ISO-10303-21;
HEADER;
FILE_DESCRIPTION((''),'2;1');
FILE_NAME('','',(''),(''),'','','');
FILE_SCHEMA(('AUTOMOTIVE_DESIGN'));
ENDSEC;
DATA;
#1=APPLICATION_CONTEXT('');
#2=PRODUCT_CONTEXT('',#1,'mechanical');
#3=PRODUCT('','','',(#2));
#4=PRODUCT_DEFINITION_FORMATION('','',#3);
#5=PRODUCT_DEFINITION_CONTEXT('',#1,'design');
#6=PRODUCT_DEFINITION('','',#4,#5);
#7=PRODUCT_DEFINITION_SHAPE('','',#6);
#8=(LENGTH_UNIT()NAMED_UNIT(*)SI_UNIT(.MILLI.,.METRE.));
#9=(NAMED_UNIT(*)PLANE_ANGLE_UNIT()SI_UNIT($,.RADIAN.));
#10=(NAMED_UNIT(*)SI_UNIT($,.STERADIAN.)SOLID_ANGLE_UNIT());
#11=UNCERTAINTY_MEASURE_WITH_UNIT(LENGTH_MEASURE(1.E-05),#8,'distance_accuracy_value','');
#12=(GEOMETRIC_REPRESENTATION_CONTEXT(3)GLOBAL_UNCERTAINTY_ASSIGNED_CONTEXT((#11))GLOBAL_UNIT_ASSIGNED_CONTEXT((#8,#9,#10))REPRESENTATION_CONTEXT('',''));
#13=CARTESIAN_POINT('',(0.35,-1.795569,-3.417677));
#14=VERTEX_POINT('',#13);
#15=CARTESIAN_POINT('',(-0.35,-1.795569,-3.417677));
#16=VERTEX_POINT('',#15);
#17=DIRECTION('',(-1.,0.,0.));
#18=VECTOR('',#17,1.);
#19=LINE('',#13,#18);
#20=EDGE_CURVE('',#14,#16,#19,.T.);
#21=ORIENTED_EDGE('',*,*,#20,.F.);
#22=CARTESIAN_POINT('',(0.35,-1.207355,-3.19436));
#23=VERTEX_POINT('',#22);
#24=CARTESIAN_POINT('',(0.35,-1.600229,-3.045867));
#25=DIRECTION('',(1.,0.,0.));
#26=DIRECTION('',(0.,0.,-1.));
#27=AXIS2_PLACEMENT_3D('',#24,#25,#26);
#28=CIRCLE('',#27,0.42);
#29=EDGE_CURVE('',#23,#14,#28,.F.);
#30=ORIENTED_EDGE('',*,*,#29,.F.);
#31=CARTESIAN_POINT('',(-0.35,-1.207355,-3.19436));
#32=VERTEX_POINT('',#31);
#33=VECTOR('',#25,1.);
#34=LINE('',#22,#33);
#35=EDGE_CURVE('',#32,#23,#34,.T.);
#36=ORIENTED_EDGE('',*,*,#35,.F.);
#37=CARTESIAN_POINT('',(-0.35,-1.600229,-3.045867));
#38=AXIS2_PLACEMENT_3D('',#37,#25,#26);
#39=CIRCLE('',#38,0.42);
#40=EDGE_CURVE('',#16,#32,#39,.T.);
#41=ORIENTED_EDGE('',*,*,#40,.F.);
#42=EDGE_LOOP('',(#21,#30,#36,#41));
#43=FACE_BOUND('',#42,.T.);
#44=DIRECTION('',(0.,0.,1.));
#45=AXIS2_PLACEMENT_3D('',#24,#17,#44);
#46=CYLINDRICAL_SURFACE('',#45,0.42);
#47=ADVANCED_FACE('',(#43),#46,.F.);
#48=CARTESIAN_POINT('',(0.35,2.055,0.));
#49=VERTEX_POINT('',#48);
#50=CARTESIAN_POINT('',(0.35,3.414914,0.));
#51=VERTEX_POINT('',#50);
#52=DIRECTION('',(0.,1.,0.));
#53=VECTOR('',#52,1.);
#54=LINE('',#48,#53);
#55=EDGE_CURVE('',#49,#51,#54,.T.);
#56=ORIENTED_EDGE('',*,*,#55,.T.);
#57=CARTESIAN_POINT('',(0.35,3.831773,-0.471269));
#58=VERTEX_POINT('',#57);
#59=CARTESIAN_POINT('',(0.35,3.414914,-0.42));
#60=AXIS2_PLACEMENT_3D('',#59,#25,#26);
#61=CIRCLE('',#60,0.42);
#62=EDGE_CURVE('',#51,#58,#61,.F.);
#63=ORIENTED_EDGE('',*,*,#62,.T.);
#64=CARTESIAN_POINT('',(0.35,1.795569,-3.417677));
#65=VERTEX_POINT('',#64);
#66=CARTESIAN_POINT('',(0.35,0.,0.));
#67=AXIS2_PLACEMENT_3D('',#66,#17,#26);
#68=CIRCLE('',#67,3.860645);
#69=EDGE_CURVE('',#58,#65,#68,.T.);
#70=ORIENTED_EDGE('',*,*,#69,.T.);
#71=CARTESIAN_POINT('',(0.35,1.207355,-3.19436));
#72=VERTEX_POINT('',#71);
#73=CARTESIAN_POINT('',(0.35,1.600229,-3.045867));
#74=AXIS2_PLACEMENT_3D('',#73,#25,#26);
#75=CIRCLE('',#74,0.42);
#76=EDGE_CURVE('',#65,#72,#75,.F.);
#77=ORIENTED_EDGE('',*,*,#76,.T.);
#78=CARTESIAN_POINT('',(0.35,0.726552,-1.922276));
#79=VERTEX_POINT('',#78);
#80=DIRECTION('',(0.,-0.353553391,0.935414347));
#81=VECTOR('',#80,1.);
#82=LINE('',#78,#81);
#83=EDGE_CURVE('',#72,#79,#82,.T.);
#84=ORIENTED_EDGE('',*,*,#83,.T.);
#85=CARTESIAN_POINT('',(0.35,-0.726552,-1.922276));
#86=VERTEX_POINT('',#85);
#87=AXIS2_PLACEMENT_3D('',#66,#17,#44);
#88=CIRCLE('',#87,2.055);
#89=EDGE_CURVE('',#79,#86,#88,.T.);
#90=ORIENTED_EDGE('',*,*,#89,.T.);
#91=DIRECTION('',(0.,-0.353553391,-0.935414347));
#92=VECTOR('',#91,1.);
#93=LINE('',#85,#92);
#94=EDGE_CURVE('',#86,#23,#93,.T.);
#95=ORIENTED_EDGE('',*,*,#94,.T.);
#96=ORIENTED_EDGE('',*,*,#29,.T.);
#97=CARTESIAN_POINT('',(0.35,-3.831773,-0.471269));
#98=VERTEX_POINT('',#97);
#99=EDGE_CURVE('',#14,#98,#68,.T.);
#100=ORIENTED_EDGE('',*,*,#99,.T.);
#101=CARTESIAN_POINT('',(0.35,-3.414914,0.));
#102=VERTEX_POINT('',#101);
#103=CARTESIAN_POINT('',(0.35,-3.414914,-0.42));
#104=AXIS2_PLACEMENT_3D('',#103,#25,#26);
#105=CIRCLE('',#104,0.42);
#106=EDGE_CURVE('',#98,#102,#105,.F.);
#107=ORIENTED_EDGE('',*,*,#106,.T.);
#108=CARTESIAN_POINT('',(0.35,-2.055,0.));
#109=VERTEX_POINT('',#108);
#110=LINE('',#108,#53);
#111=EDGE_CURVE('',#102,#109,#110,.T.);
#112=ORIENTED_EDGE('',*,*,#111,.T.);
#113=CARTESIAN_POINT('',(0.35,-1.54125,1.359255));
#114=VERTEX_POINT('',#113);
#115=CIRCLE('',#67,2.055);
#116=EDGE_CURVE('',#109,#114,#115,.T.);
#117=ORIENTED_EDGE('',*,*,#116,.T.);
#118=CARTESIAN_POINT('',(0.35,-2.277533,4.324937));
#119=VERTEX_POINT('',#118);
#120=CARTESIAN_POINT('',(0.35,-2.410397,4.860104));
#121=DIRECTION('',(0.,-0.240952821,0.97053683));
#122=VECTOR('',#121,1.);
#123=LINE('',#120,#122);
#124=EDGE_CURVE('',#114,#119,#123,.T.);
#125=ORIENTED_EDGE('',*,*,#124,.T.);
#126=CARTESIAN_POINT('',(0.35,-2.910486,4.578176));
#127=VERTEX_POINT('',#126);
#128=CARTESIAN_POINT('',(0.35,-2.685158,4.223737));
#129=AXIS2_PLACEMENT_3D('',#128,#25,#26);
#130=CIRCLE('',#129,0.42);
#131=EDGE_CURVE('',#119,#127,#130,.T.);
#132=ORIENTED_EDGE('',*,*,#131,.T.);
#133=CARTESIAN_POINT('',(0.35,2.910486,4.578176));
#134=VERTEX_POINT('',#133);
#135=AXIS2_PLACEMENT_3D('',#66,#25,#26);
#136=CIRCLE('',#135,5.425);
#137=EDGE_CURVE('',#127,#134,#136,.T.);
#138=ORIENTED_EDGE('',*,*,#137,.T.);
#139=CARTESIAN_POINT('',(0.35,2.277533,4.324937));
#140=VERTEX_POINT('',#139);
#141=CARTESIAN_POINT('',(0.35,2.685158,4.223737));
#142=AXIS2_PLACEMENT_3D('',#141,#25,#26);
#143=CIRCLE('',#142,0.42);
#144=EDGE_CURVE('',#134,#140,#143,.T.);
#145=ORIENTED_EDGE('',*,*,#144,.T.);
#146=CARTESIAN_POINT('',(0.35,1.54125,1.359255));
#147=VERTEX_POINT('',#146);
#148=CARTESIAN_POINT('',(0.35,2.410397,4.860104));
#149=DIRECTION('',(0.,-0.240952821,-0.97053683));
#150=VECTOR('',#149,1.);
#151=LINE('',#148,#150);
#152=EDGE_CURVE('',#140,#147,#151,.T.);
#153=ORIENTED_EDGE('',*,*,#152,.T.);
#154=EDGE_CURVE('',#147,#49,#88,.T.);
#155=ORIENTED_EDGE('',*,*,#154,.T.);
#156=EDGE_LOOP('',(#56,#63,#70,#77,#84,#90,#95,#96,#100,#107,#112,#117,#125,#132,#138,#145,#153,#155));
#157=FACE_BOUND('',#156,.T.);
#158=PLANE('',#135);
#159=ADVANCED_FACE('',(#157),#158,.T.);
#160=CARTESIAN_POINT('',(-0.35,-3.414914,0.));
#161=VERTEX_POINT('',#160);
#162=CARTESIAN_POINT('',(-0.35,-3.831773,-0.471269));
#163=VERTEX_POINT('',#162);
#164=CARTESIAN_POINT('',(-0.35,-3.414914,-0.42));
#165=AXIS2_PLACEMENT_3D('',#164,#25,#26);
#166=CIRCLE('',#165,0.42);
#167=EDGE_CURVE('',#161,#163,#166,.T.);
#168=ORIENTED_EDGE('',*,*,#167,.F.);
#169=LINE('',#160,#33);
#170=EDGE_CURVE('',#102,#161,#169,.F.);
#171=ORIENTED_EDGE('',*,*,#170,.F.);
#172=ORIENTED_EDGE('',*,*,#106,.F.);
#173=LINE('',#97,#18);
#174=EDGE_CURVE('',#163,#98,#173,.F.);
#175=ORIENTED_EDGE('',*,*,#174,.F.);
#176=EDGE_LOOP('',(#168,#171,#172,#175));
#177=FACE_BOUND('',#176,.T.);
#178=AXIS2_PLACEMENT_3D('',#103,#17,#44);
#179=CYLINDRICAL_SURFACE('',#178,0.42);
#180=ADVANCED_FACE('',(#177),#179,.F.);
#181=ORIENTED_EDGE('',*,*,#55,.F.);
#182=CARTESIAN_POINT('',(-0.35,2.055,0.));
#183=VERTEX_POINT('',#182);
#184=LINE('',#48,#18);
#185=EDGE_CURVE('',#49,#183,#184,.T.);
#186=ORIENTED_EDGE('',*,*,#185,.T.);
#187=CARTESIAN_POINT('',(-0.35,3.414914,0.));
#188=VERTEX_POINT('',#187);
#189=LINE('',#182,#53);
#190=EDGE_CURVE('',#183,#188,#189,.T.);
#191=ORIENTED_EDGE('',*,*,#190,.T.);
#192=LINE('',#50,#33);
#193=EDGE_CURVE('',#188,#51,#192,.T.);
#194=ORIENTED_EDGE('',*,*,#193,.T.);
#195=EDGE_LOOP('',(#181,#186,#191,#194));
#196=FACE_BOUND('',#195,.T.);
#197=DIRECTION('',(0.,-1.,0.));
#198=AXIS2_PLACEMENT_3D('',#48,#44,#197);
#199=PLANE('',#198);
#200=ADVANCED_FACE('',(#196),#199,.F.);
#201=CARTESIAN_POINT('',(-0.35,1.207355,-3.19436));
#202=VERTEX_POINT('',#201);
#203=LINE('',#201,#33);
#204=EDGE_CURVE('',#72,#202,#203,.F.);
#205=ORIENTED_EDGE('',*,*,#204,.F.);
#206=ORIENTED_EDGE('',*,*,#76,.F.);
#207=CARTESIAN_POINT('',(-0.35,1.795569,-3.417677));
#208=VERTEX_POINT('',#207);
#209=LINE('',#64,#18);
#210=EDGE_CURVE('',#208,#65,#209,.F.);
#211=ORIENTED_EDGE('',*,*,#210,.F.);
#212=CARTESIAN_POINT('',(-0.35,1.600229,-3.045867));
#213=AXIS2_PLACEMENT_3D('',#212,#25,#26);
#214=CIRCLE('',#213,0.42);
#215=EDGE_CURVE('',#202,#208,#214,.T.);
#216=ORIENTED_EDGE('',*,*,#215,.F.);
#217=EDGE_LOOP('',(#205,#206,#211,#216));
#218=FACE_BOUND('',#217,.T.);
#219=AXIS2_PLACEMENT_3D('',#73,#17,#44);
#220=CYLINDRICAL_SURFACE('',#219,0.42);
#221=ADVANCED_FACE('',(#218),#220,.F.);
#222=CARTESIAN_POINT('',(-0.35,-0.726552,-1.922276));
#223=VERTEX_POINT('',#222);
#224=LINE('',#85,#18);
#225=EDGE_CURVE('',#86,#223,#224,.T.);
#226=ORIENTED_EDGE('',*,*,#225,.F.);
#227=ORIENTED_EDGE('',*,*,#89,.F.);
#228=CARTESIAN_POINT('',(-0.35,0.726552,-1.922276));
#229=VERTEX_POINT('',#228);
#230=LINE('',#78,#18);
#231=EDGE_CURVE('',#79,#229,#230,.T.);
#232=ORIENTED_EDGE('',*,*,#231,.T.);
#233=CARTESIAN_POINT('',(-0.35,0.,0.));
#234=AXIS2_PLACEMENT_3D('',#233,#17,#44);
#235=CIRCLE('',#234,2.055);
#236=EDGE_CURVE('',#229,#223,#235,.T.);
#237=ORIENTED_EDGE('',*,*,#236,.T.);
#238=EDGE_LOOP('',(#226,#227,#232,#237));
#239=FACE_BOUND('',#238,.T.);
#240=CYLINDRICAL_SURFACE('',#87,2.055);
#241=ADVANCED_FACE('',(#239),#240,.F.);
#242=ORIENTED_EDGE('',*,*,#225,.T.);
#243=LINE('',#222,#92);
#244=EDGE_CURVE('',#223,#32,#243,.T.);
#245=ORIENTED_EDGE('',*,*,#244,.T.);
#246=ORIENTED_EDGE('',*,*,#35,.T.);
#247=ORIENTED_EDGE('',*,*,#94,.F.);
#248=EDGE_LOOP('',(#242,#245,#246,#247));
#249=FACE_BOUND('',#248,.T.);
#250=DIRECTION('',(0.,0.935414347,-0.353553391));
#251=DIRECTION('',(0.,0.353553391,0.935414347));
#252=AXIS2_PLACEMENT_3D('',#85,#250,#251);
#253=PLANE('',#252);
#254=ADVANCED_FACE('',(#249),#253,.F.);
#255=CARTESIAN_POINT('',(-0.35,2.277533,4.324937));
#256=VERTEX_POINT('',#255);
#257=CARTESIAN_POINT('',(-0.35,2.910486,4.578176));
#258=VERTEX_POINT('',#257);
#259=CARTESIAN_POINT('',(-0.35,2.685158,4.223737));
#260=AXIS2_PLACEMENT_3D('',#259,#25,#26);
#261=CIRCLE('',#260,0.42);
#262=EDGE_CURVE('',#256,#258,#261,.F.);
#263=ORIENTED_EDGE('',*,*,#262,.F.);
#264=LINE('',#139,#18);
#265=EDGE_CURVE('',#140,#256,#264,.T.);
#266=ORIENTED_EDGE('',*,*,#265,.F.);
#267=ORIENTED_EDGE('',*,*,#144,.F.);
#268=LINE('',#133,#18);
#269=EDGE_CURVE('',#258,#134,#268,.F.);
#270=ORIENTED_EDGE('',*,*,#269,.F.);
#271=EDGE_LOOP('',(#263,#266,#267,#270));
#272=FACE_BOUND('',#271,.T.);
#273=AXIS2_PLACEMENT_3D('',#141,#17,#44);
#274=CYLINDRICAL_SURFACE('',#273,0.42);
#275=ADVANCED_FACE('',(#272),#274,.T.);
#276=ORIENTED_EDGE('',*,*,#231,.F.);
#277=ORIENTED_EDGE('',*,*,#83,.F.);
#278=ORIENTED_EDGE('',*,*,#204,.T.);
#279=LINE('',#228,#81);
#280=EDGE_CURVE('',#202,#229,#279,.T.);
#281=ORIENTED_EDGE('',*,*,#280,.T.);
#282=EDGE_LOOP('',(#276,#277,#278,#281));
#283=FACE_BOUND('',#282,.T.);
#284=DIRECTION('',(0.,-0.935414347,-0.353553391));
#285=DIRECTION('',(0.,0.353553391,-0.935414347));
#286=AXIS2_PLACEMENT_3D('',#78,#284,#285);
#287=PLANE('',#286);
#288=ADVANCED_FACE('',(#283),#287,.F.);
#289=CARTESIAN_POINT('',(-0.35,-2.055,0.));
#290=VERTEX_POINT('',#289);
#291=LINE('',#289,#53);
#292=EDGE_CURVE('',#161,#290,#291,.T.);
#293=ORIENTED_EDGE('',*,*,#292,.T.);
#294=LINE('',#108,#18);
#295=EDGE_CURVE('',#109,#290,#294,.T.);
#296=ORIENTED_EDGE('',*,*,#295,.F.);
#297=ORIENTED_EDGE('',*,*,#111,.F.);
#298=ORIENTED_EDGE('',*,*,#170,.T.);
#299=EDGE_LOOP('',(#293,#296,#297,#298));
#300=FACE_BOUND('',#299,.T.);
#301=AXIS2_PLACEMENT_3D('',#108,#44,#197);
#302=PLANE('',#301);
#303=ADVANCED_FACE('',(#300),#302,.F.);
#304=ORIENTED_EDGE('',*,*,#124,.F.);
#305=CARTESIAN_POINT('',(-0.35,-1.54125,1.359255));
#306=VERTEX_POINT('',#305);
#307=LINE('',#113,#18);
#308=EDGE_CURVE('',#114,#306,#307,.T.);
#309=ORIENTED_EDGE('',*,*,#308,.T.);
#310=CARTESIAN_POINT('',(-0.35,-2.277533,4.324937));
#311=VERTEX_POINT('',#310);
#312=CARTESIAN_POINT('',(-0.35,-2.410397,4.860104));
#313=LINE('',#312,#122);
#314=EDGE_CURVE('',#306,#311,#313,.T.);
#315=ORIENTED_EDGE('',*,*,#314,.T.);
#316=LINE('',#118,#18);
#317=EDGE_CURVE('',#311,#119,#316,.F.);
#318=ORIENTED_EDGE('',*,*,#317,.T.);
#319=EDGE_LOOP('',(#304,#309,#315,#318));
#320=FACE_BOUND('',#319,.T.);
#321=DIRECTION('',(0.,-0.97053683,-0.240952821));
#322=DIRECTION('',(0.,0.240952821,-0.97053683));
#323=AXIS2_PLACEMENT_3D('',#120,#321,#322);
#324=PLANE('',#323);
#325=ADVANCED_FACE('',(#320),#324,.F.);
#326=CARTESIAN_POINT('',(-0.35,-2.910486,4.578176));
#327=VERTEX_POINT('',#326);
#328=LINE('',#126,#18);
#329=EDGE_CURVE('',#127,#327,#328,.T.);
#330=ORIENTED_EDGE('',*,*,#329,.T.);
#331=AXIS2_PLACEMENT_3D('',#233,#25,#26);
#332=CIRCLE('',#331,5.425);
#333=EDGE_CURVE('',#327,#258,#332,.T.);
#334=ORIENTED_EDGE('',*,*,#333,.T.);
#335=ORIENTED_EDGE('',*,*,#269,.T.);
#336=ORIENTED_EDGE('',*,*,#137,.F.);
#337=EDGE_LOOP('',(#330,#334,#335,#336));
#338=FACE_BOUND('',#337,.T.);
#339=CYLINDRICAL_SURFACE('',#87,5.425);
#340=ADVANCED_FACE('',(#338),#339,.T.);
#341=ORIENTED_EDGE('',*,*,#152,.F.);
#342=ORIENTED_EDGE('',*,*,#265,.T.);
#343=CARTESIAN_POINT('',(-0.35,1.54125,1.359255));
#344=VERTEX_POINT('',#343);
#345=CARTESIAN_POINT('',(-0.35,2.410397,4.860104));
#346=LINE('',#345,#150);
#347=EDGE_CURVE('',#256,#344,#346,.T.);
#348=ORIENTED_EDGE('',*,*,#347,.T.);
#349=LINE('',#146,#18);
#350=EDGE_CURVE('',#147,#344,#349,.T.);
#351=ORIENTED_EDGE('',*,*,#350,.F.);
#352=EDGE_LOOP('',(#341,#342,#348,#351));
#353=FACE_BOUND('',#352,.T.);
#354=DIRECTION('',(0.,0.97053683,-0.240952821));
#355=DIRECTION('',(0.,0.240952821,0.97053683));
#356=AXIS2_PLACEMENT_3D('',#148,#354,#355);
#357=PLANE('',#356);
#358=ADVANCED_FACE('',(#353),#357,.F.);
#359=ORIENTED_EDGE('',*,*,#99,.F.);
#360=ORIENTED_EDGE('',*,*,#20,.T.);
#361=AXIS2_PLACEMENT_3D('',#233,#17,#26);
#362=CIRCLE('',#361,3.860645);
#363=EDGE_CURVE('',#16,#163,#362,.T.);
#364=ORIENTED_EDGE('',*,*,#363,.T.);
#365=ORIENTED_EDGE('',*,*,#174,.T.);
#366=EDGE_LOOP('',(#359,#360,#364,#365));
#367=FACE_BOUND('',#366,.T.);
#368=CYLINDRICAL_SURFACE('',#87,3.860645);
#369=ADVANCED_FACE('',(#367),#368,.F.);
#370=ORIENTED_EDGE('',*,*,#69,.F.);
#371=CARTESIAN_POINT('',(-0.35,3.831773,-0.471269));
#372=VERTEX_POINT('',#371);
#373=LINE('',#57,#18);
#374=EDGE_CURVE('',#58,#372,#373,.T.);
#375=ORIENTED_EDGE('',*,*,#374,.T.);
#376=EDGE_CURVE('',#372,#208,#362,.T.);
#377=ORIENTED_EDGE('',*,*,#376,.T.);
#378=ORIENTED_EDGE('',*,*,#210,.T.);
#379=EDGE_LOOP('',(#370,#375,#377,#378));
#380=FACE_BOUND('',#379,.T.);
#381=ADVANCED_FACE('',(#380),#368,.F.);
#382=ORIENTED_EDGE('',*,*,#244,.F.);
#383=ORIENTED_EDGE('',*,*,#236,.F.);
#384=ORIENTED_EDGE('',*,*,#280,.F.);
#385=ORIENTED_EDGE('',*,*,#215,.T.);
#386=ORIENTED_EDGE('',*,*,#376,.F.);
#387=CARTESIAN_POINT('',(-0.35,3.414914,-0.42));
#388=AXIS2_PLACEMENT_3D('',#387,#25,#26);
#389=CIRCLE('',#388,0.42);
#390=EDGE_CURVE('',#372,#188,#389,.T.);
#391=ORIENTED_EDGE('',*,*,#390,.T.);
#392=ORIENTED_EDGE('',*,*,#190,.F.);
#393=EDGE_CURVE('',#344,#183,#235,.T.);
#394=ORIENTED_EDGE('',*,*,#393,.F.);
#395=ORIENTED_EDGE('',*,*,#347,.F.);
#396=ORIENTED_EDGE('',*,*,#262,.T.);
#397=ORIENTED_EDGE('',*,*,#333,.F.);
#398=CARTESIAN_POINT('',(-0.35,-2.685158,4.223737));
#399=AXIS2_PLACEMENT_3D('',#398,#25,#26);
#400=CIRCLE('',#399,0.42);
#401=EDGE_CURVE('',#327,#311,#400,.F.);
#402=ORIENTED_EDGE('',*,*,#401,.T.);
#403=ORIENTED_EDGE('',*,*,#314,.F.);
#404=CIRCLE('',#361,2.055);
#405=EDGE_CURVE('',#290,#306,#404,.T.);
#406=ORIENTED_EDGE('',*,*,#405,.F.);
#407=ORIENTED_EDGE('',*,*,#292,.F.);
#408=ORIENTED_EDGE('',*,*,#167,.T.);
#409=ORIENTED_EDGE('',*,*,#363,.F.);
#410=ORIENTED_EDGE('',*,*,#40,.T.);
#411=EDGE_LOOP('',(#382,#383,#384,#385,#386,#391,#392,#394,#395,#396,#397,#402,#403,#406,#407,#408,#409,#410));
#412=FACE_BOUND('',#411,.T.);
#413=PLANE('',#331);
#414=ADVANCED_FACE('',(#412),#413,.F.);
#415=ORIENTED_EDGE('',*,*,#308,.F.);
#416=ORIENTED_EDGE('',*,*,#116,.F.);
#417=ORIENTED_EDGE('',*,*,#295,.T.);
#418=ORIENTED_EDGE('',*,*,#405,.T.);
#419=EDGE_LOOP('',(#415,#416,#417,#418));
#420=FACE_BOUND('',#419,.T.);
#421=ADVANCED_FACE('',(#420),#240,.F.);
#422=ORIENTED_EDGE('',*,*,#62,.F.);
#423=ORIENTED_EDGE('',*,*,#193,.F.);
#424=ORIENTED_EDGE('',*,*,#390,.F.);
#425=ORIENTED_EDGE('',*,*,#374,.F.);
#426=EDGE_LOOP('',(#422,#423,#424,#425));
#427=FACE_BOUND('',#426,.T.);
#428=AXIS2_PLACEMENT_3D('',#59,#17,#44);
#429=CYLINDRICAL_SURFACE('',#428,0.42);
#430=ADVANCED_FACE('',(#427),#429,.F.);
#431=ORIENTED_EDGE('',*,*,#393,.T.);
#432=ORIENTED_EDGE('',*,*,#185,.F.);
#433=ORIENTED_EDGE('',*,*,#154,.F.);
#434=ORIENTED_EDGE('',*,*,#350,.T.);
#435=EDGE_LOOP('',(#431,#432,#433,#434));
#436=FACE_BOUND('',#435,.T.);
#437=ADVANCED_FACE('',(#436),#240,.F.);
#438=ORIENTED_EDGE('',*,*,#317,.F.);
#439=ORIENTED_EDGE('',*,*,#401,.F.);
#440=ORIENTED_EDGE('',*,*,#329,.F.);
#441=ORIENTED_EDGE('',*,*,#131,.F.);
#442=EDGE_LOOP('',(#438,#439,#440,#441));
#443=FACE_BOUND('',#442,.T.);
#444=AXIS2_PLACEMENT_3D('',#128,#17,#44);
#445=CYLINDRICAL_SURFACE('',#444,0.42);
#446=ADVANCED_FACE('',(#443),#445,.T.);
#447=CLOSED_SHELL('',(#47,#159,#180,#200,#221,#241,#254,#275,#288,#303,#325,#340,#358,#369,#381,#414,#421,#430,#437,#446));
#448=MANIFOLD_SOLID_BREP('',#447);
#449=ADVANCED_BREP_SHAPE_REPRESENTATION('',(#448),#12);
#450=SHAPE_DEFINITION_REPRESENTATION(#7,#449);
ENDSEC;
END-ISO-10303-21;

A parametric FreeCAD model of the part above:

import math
import FreeCAD as App
import Part
import Sketcher
from FreeCAD import Vector
Q = App.Units.Quantity


def edges_at(feature, points):
    """Names of the edges that pass closest to the given points."""
    edges = feature.Shape.Edges
    near = lambda p: min(range(len(edges)), key=lambda i: edges[i].distToShape(Part.Vertex(*p))[0])
    return sorted({f"Edge{near(p) + 1}" for p in points})

doc = App.newDocument("Part")
body = doc.addObject("PartDesign::Body", "Body")

# Sketch on YZ plane
sketch1 = doc.addObject("Sketcher::SketchObject", "Sketch")
body.addObject(sketch1)
sketch1.AttachmentSupport = (doc.YZ_Plane, [""])
sketch1.MapMode = "FlatFace"
sketch1.addGeometry(Part.LineSegment(Vector(-1.5, 1.4, 0), Vector(-2.4, 4.9, 0)), False)
sketch1.addGeometry(Part.ArcOfCircle(Part.Circle(Vector(0, 0, 0), Vector(0, 0, 1), 5.4), math.radians(116), math.radians(424)), False)
sketch1.addGeometry(Part.LineSegment(Vector(2.4, 4.9, 0), Vector(1.5, 1.4, 0)), False)
sketch1.addGeometry(Part.ArcOfCircle(Part.Circle(Vector(0, 0, 0), Vector(0, 0, 1), 2.1), math.radians(0), math.radians(41)), False)
sketch1.addGeometry(Part.LineSegment(Vector(2.1, 0, 0), Vector(3.9, 0, 0)), False)
sketch1.addGeometry(Part.ArcOfCircle(Part.Circle(Vector(0, 0, 0), Vector(0, 0, 1), 3.9), math.radians(-69), math.radians(0)), False)
sketch1.addGeometry(Part.LineSegment(Vector(1.4, -3.6, 0), Vector(0.7, -1.9, 0)), False)
sketch1.addGeometry(Part.ArcOfCircle(Part.Circle(Vector(0, 0, 0), Vector(0, 0, 1), 2.1), math.radians(-111), math.radians(-69)), False)
sketch1.addGeometry(Part.LineSegment(Vector(-0.7, -1.9, 0), Vector(-1.4, -3.6, 0)), False)
sketch1.addGeometry(Part.ArcOfCircle(Part.Circle(Vector(0, 0, 0), Vector(0, 0, 1), 3.9), math.radians(180), math.radians(249)), False)
sketch1.addGeometry(Part.LineSegment(Vector(-3.9, 0, 0), Vector(-2.1, 0, 0)), False)
sketch1.addGeometry(Part.ArcOfCircle(Part.Circle(Vector(0, 0, 0), Vector(0, 0, 1), 2.1), math.radians(139), math.radians(180)), False)
sketch1.addConstraint(Sketcher.Constraint("Coincident", 0, 2, 1, 1))
sketch1.addConstraint(Sketcher.Constraint("Coincident", 1, 2, 2, 1))
sketch1.addConstraint(Sketcher.Constraint("Coincident", 2, 2, 3, 2))
sketch1.addConstraint(Sketcher.Constraint("Coincident", 3, 1, 4, 1))
sketch1.addConstraint(Sketcher.Constraint("Coincident", 4, 2, 5, 2))
sketch1.addConstraint(Sketcher.Constraint("Coincident", 5, 1, 6, 1))
sketch1.addConstraint(Sketcher.Constraint("Coincident", 6, 2, 7, 2))
sketch1.addConstraint(Sketcher.Constraint("Coincident", 7, 1, 8, 1))
sketch1.addConstraint(Sketcher.Constraint("Coincident", 8, 2, 9, 2))
sketch1.addConstraint(Sketcher.Constraint("Coincident", 9, 1, 10, 1))
sketch1.addConstraint(Sketcher.Constraint("Coincident", 10, 2, 11, 2))
sketch1.addConstraint(Sketcher.Constraint("Coincident", 11, 1, 0, 1))
sketch1.addConstraint(Sketcher.Constraint("Horizontal", 4))
sketch1.addConstraint(Sketcher.Constraint("Horizontal", 10))
sketch1.addConstraint(Sketcher.Constraint("Coincident", 1, 3, -1, 1))
sketch1.addConstraint(Sketcher.Constraint("Coincident", 3, 3, -1, 1))
sketch1.addConstraint(Sketcher.Constraint("Coincident", 5, 3, -1, 1))
sketch1.addConstraint(Sketcher.Constraint("Coincident", 7, 3, -1, 1))
sketch1.addConstraint(Sketcher.Constraint("Coincident", 9, 3, -1, 1))
sketch1.addConstraint(Sketcher.Constraint("Coincident", 11, 3, -1, 1))
sketch1.addConstraint(Sketcher.Constraint("Equal", 3, 7))
sketch1.addConstraint(Sketcher.Constraint("Equal", 5, 9))
sketch1.addConstraint(Sketcher.Constraint("Equal", 7, 11))
sketch1.addConstraint(Sketcher.Constraint("PointOnObject", 3, 1, -1))
sketch1.addConstraint(Sketcher.Constraint("PointOnObject", 9, 1, -1))
sketch1.addConstraint(Sketcher.Constraint("Horizontal", 0, 2, 1, 2))
sketch1.addConstraint(Sketcher.Constraint("Horizontal", 6, 2, 7, 1))
sketch1.addConstraint(Sketcher.Constraint("Horizontal", 5, 1, 8, 2))
sketch1.addConstraint(Sketcher.Constraint("Horizontal", 2, 2, 11, 1))
sketch1.addConstraint(Sketcher.Constraint("Radius", 1, Q("5.425 mm")))
sketch1.addConstraint(Sketcher.Constraint("Radius", 3, Q("2.055 mm")))
sketch1.addConstraint(Sketcher.Constraint("Radius", 5, Q("3.860645 mm")))
sketch1.addConstraint(Sketcher.Constraint("DistanceX", -1, 1, 2, 2, Q("1.54125 mm")))
sketch1.addConstraint(Sketcher.Constraint("DistanceX", 6, 2, 5, 1, Q("0.638392 mm")))
sketch1.addConstraint(Sketcher.Constraint("DistanceX", 8, 2, 5, 1, Q("2.729888 mm")))
sketch1.addConstraint(Sketcher.Constraint("Distance", 0, Q("3.607127 mm")))
pad1 = doc.addObject("PartDesign::Pad", "Pad")
body.addObject(pad1)
pad1.Profile = sketch1
pad1.Length = 0.7
pad1.Midplane = True
doc.recompute()

fillet = doc.addObject("PartDesign::Fillet", "Fillet")
body.addObject(fillet)
fillet.Base = (pad1, edges_at(pad1, [
    (0, -2.41, 4.86),
    (0, -3.861, 0),
    (0, -1.365, -3.611),
    (0, 1.365, -3.611),
    (0, 3.861, 0),
    (0, 2.41, 4.86),
]))
fillet.Radius = 0.42

doc.recompute()
